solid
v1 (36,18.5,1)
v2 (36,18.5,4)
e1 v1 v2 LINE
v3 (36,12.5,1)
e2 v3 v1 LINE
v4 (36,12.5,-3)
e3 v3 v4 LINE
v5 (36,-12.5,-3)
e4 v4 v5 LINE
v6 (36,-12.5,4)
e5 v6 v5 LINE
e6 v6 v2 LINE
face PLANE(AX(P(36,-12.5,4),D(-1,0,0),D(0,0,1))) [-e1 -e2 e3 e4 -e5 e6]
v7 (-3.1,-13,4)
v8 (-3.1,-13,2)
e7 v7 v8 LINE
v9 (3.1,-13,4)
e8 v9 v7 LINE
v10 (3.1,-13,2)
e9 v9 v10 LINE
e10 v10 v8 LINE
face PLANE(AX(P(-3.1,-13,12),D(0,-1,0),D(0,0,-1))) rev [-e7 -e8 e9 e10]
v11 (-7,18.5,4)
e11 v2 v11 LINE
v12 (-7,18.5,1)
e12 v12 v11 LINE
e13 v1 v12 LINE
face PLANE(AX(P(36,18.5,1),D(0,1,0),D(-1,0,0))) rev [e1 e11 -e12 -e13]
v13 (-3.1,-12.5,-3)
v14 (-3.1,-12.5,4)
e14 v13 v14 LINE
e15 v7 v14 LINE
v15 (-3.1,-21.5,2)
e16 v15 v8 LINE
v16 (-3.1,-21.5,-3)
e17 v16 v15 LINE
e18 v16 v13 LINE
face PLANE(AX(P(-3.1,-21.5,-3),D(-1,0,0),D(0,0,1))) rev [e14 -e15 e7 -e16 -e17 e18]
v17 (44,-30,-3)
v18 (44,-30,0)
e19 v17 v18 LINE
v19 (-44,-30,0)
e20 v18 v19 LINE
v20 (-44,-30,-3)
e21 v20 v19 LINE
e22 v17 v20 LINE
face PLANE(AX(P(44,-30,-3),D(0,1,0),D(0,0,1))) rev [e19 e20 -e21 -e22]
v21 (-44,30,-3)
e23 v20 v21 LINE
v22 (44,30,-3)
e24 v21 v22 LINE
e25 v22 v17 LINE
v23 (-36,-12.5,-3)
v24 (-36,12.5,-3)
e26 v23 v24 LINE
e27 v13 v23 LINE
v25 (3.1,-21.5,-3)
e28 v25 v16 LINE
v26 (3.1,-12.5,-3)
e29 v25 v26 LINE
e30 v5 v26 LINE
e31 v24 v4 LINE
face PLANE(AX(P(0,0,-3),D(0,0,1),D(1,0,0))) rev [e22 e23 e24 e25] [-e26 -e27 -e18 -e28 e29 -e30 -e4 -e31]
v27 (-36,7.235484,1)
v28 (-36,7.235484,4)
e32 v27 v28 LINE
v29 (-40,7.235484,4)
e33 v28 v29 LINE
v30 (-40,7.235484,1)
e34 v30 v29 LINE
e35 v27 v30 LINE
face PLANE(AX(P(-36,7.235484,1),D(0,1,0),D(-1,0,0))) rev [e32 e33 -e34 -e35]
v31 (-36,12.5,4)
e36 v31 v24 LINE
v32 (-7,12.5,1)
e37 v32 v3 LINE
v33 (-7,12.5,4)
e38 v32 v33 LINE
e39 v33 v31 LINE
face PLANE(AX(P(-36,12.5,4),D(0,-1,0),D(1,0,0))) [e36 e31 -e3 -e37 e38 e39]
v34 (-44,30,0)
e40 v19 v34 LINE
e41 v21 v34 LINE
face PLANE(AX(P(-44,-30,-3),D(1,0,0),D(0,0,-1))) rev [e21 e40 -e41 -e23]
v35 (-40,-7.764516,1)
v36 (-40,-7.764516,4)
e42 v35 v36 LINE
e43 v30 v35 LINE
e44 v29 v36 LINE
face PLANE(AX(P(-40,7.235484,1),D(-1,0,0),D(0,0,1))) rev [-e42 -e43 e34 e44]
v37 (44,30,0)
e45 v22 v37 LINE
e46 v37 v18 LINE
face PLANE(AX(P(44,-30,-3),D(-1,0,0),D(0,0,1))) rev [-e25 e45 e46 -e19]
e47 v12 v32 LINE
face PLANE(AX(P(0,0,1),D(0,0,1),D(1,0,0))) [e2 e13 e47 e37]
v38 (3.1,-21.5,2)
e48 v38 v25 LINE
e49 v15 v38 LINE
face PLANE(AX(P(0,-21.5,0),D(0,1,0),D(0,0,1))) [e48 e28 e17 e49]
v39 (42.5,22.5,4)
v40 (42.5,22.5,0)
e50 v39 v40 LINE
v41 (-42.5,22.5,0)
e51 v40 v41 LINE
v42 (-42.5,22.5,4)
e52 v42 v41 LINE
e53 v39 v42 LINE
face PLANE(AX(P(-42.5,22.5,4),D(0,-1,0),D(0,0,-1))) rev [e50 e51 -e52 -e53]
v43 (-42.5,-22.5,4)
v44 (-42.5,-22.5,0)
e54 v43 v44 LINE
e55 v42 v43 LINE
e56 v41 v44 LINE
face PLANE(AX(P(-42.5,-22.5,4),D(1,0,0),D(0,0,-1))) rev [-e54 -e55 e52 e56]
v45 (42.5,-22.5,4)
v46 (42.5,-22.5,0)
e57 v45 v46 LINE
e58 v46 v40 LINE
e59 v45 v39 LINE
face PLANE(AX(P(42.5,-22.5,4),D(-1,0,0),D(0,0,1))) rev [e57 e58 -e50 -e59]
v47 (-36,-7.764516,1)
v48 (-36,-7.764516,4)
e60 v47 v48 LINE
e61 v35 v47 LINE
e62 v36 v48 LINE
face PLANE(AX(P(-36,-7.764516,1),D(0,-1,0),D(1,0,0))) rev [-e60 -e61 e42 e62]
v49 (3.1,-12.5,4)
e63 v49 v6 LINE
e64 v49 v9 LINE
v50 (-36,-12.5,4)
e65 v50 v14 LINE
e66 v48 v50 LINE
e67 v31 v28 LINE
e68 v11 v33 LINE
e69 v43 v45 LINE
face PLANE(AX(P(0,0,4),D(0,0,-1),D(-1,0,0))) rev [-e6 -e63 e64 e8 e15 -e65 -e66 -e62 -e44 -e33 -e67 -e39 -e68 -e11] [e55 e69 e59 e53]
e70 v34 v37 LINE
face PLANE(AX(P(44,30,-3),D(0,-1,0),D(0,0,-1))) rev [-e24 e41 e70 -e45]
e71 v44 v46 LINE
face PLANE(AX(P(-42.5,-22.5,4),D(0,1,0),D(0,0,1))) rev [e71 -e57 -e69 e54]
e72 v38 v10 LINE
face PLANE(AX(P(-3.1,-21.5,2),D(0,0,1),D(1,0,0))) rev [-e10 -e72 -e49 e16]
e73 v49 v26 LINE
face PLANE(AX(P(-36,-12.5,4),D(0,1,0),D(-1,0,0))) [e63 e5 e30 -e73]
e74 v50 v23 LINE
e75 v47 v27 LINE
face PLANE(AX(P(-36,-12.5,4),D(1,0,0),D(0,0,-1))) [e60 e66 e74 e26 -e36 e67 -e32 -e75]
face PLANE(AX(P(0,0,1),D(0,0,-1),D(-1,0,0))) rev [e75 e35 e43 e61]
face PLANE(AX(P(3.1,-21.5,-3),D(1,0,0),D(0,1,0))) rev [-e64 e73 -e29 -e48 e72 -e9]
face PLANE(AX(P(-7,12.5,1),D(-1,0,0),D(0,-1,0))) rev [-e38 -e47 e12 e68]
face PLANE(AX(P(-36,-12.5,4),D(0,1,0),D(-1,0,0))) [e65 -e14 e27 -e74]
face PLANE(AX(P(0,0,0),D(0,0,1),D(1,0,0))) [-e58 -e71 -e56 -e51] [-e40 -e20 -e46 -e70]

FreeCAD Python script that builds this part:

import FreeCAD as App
import Part
import Sketcher

doc = App.newDocument("Part")
body = doc.addObject("PartDesign::Body", "Body")

sketch1 = doc.addObject("Sketcher::SketchObject", "Sketch")
body.addObject(sketch1)
sketch1.AttachmentSupport = (doc.XY_Plane, [""])
sketch1.MapMode = "FlatFace"
sketch1.addGeometry([
    Part.LineSegment(App.Vector(-42, 22, 0), App.Vector(-42, -22, 0)),
    Part.LineSegment(App.Vector(-42, -22, 0), App.Vector(42, -22, 0)),
    Part.LineSegment(App.Vector(42, -22, 0), App.Vector(42, 22, 0)),
    Part.LineSegment(App.Vector(42, 22, 0), App.Vector(-42, 22, 0)),
    Part.LineSegment(App.Vector(36, -12, 0), App.Vector(-36, -12, 0)),
    Part.LineSegment(App.Vector(-36, -12, 0), App.Vector(-36, 12, 0)),
    Part.LineSegment(App.Vector(-36, 12, 0), App.Vector(36, 12, 0)),
    Part.LineSegment(App.Vector(36, 12, 0), App.Vector(36, -12, 0)),
], False)
sketch1.addConstraint([
    Sketcher.Constraint("Coincident", 0, 2, 1, 1),
    Sketcher.Constraint("Coincident", 1, 2, 2, 1),
    Sketcher.Constraint("Coincident", 2, 2, 3, 1),
    Sketcher.Constraint("Coincident", 3, 2, 0, 1),
    Sketcher.Constraint("Coincident", 4, 2, 5, 1),
    Sketcher.Constraint("Coincident", 5, 2, 6, 1),
    Sketcher.Constraint("Coincident", 6, 2, 7, 1),
    Sketcher.Constraint("Coincident", 7, 2, 4, 1),
    Sketcher.Constraint("Vertical", 0),
    Sketcher.Constraint("Horizontal", 1),
    Sketcher.Constraint("Vertical", 2),
    Sketcher.Constraint("Horizontal", 3),
    Sketcher.Constraint("Horizontal", 4),
    Sketcher.Constraint("Vertical", 5),
    Sketcher.Constraint("Horizontal", 6),
    Sketcher.Constraint("Vertical", 7),
    Sketcher.Constraint("Symmetric", 0, 2, 2, 2, -1, 1),
    Sketcher.Constraint("Symmetric", 4, 2, 6, 2, -1, 1),
    Sketcher.Constraint("DistanceX", 1, 1, 1, 2, 85.0),
    Sketcher.Constraint("DistanceX", 4, 2, 4, 1, 72.0),
    Sketcher.Constraint("DistanceY", 0, 2, 0, 1, 45.0),
    Sketcher.Constraint("DistanceY", 5, 1, 5, 2, 25.0),
])
pad1 = doc.addObject("PartDesign::Pad", "Pad")
body.addObject(pad1)
pad1.Profile = sketch1
pad1.Length = 4

sketch2 = doc.addObject("Sketcher::SketchObject", "Sketch001")
body.addObject(sketch2)
sketch2.AttachmentSupport = (doc.XY_Plane, [""])
sketch2.MapMode = "FlatFace"
sketch2.addGeometry([
    Part.LineSegment(App.Vector(44, 30, 0), App.Vector(44, -30, 0)),
    Part.LineSegment(App.Vector(44, -30, 0), App.Vector(-44, -30, 0)),
    Part.LineSegment(App.Vector(-44, -30, 0), App.Vector(-44, 30, 0)),
    Part.LineSegment(App.Vector(-44, 30, 0), App.Vector(44, 30, 0)),
    Part.LineSegment(App.Vector(-36, -12, 0), App.Vector(36, -12, 0)),
    Part.LineSegment(App.Vector(36, -12, 0), App.Vector(36, 12, 0)),
    Part.LineSegment(App.Vector(36, 12, 0), App.Vector(-36, 12, 0)),
    Part.LineSegment(App.Vector(-36, 12, 0), App.Vector(-36, -12, 0)),
], False)
sketch2.addConstraint([
    Sketcher.Constraint("Coincident", 0, 2, 1, 1),
    Sketcher.Constraint("Coincident", 1, 2, 2, 1),
    Sketcher.Constraint("Coincident", 2, 2, 3, 1),
    Sketcher.Constraint("Coincident", 3, 2, 0, 1),
    Sketcher.Constraint("Coincident", 4, 2, 5, 1),
    Sketcher.Constraint("Coincident", 5, 2, 6, 1),
    Sketcher.Constraint("Coincident", 6, 2, 7, 1),
    Sketcher.Constraint("Coincident", 7, 2, 4, 1),
    Sketcher.Constraint("Vertical", 0),
    Sketcher.Constraint("Horizontal", 1),
    Sketcher.Constraint("Vertical", 2),
    Sketcher.Constraint("Horizontal", 3),
    Sketcher.Constraint("Horizontal", 4),
    Sketcher.Constraint("Vertical", 5),
    Sketcher.Constraint("Horizontal", 6),
    Sketcher.Constraint("Vertical", 7),
    Sketcher.Constraint("Symmetric", 0, 2, 2, 2, -1, 1),
    Sketcher.Constraint("Symmetric", 4, 2, 6, 2, -1, 1),
    Sketcher.Constraint("DistanceX", 1, 2, 1, 1, 88.0),
    Sketcher.Constraint("DistanceX", 4, 1, 4, 2, 72.0),
    Sketcher.Constraint("DistanceY", 0, 2, 0, 1, 60.0),
    Sketcher.Constraint("DistanceY", 5, 1, 5, 2, 25.0),
])
pad2 = doc.addObject("PartDesign::Pad", "Pad001")
body.addObject(pad2)
pad2.Profile = sketch2
pad2.Length = 3
pad2.Reversed = True

sketch3 = doc.addObject("Sketcher::SketchObject", "Sketch002")
body.addObject(sketch3)
sketch3.AttachmentSupport = (doc.XY_Plane, [""])
sketch3.MapMode = "FlatFace"
sketch3.AttachmentOffset = App.Placement(App.Vector(0, 0, 4), App.Rotation())
sketch3.addGeometry([
    Part.LineSegment(App.Vector(-40, 7.2, 0), App.Vector(-40, -7.8, 0)),
    Part.LineSegment(App.Vector(-40, -7.8, 0), App.Vector(-36, -7.8, 0)),
    Part.LineSegment(App.Vector(-36, -7.8, 0), App.Vector(-36, 7.2, 0)),
    Part.LineSegment(App.Vector(-36, 7.2, 0), App.Vector(-40, 7.2, 0)),
], False)
sketch3.addConstraint([
    Sketcher.Constraint("Coincident", 0, 2, 1, 1),
    Sketcher.Constraint("Coincident", 1, 2, 2, 1),
    Sketcher.Constraint("Coincident", 2, 2, 3, 1),
    Sketcher.Constraint("Coincident", 3, 2, 0, 1),
    Sketcher.Constraint("Vertical", 0),
    Sketcher.Constraint("Horizontal", 1),
    Sketcher.Constraint("Vertical", 2),
    Sketcher.Constraint("Horizontal", 3),
    Sketcher.Constraint("DistanceX", 1, 1, 1, 2, 4.0),
    Sketcher.Constraint("DistanceY", 0, 2, 0, 1, 15.0),
    Sketcher.Constraint("DistanceX", 0, 2, -1, 1, 40.0),
    Sketcher.Constraint("DistanceY", 0, 2, -1, 1, 7.764516),
])
pocket1 = doc.addObject("PartDesign::Pocket", "Pocket")
body.addObject(pocket1)
pocket1.Profile = sketch3
pocket1.Length = 3

sketch4 = doc.addObject("Sketcher::SketchObject", "Sketch003")
body.addObject(sketch4)
sketch4.AttachmentSupport = (doc.XY_Plane, [""])
sketch4.MapMode = "FlatFace"
sketch4.AttachmentOffset = App.Placement(App.Vector(0, 0, 4), App.Rotation())
sketch4.addGeometry([
    Part.LineSegment(App.Vector(-7, 18, 0), App.Vector(-7, 12, 0)),
    Part.LineSegment(App.Vector(-7, 12, 0), App.Vector(36, 12, 0)),
    Part.LineSegment(App.Vector(36, 12, 0), App.Vector(36, 18, 0)),
    Part.LineSegment(App.Vector(36, 18, 0), App.Vector(-7, 18, 0)),
], False)
sketch4.addConstraint([
    Sketcher.Constraint("Coincident", 0, 2, 1, 1),
    Sketcher.Constraint("Coincident", 1, 2, 2, 1),
    Sketcher.Constraint("Coincident", 2, 2, 3, 1),
    Sketcher.Constraint("Coincident", 3, 2, 0, 1),
    Sketcher.Constraint("Vertical", 0),
    Sketcher.Constraint("Horizontal", 1),
    Sketcher.Constraint("Vertical", 2),
    Sketcher.Constraint("Horizontal", 3),
    Sketcher.Constraint("DistanceX", 1, 1, 1, 2, 43.0),
    Sketcher.Constraint("DistanceY", 0, 2, 0, 1, 6.0),
    Sketcher.Constraint("DistanceX", 0, 2, -1, 1, 7.0),
    Sketcher.Constraint("DistanceY", -1, 1, 0, 2, 12.5),
])
pocket2 = doc.addObject("PartDesign::Pocket", "Pocket001")
body.addObject(pocket2)
pocket2.Profile = sketch4
pocket2.Length = 3

sketch5 = doc.addObject("Sketcher::SketchObject", "Sketch004")
body.addObject(sketch5)
sketch5.AttachmentSupport = (doc.XZ_Plane, [""])
sketch5.MapMode = "FlatFace"
sketch5.AttachmentOffset = App.Placement(App.Vector(0, 0, 12.5), App.Rotation())
sketch5.addGeometry([
    Part.LineSegment(App.Vector(-3, -3, 0), App.Vector(-3, 2, 0)),
    Part.LineSegment(App.Vector(-3, 2, 0), App.Vector(3, 2, 0)),
    Part.LineSegment(App.Vector(3, 2, 0), App.Vector(3, -3, 0)),
    Part.LineSegment(App.Vector(3, -3, 0), App.Vector(-3, -3, 0)),
], False)
sketch5.addConstraint([
    Sketcher.Constraint("Coincident", 0, 2, 1, 1),
    Sketcher.Constraint("Coincident", 1, 2, 2, 1),
    Sketcher.Constraint("Coincident", 2, 2, 3, 1),
    Sketcher.Constraint("Coincident", 3, 2, 0, 1),
    Sketcher.Constraint("Vertical", 0),
    Sketcher.Constraint("Horizontal", 1),
    Sketcher.Constraint("Vertical", 2),
    Sketcher.Constraint("Horizontal", 3),
    Sketcher.Constraint("DistanceY", 0, 1, 0, 2, 5.0),
    Sketcher.Constraint("DistanceX", 1, 1, 1, 2, 6.2),
    Sketcher.Constraint("DistanceY", -1, 1, 0, 2, 2.0),
    Sketcher.Constraint("DistanceX", 0, 2, -1, 1, 3.1),
])
pocket3 = doc.addObject("PartDesign::Pocket", "Pocket002")
body.addObject(pocket3)
pocket3.Profile = sketch5
pocket3.Length = 9
pocket3.Reversed = True

sketch6 = doc.addObject("Sketcher::SketchObject", "Sketch005")
body.addObject(sketch6)
sketch6.AttachmentSupport = (doc.XY_Plane, [""])
sketch6.MapMode = "FlatFace"
sketch6.AttachmentOffset = App.Placement(App.Vector(0, 0, 2), App.Rotation())
sketch6.addGeometry([
    Part.LineSegment(App.Vector(3.1, -12.5, 0), App.Vector(3.1, -13, 0)),
    Part.LineSegment(App.Vector(3.1, -13, 0), App.Vector(-3.1, -13, 0)),
    Part.LineSegment(App.Vector(-3.1, -13, 0), App.Vector(-3.1, -12.5, 0)),
    Part.LineSegment(App.Vector(-3.1, -12.5, 0), App.Vector(3.1, -12.5, 0)),
], False)
sketch6.addConstraint([
    Sketcher.Constraint("Coincident", 0, 2, 1, 1),
    Sketcher.Constraint("Coincident", 1, 2, 2, 1),
    Sketcher.Constraint("Coincident", 2, 2, 3, 1),
    Sketcher.Constraint("Coincident", 3, 2, 0, 1),
    Sketcher.Constraint("Vertical", 0),
    Sketcher.Constraint("Horizontal", 1),
    Sketcher.Constraint("Vertical", 2),
    Sketcher.Constraint("Horizontal", 3),
    Sketcher.Constraint("DistanceX", 1, 2, 1, 1, 6.2),
    Sketcher.Constraint("DistanceY", 0, 2, 0, 1, 0.5),
    Sketcher.Constraint("DistanceY", 0, 2, -1, 1, 13.0),
    Sketcher.Constraint("DistanceX", -1, 1, 0, 2, 3.1),
])
pocket4 = doc.addObject("PartDesign::Pocket", "Pocket003")
body.addObject(pocket4)
pocket4.Profile = sketch6
pocket4.Length = 10
pocket4.Reversed = True

doc.recompute()
